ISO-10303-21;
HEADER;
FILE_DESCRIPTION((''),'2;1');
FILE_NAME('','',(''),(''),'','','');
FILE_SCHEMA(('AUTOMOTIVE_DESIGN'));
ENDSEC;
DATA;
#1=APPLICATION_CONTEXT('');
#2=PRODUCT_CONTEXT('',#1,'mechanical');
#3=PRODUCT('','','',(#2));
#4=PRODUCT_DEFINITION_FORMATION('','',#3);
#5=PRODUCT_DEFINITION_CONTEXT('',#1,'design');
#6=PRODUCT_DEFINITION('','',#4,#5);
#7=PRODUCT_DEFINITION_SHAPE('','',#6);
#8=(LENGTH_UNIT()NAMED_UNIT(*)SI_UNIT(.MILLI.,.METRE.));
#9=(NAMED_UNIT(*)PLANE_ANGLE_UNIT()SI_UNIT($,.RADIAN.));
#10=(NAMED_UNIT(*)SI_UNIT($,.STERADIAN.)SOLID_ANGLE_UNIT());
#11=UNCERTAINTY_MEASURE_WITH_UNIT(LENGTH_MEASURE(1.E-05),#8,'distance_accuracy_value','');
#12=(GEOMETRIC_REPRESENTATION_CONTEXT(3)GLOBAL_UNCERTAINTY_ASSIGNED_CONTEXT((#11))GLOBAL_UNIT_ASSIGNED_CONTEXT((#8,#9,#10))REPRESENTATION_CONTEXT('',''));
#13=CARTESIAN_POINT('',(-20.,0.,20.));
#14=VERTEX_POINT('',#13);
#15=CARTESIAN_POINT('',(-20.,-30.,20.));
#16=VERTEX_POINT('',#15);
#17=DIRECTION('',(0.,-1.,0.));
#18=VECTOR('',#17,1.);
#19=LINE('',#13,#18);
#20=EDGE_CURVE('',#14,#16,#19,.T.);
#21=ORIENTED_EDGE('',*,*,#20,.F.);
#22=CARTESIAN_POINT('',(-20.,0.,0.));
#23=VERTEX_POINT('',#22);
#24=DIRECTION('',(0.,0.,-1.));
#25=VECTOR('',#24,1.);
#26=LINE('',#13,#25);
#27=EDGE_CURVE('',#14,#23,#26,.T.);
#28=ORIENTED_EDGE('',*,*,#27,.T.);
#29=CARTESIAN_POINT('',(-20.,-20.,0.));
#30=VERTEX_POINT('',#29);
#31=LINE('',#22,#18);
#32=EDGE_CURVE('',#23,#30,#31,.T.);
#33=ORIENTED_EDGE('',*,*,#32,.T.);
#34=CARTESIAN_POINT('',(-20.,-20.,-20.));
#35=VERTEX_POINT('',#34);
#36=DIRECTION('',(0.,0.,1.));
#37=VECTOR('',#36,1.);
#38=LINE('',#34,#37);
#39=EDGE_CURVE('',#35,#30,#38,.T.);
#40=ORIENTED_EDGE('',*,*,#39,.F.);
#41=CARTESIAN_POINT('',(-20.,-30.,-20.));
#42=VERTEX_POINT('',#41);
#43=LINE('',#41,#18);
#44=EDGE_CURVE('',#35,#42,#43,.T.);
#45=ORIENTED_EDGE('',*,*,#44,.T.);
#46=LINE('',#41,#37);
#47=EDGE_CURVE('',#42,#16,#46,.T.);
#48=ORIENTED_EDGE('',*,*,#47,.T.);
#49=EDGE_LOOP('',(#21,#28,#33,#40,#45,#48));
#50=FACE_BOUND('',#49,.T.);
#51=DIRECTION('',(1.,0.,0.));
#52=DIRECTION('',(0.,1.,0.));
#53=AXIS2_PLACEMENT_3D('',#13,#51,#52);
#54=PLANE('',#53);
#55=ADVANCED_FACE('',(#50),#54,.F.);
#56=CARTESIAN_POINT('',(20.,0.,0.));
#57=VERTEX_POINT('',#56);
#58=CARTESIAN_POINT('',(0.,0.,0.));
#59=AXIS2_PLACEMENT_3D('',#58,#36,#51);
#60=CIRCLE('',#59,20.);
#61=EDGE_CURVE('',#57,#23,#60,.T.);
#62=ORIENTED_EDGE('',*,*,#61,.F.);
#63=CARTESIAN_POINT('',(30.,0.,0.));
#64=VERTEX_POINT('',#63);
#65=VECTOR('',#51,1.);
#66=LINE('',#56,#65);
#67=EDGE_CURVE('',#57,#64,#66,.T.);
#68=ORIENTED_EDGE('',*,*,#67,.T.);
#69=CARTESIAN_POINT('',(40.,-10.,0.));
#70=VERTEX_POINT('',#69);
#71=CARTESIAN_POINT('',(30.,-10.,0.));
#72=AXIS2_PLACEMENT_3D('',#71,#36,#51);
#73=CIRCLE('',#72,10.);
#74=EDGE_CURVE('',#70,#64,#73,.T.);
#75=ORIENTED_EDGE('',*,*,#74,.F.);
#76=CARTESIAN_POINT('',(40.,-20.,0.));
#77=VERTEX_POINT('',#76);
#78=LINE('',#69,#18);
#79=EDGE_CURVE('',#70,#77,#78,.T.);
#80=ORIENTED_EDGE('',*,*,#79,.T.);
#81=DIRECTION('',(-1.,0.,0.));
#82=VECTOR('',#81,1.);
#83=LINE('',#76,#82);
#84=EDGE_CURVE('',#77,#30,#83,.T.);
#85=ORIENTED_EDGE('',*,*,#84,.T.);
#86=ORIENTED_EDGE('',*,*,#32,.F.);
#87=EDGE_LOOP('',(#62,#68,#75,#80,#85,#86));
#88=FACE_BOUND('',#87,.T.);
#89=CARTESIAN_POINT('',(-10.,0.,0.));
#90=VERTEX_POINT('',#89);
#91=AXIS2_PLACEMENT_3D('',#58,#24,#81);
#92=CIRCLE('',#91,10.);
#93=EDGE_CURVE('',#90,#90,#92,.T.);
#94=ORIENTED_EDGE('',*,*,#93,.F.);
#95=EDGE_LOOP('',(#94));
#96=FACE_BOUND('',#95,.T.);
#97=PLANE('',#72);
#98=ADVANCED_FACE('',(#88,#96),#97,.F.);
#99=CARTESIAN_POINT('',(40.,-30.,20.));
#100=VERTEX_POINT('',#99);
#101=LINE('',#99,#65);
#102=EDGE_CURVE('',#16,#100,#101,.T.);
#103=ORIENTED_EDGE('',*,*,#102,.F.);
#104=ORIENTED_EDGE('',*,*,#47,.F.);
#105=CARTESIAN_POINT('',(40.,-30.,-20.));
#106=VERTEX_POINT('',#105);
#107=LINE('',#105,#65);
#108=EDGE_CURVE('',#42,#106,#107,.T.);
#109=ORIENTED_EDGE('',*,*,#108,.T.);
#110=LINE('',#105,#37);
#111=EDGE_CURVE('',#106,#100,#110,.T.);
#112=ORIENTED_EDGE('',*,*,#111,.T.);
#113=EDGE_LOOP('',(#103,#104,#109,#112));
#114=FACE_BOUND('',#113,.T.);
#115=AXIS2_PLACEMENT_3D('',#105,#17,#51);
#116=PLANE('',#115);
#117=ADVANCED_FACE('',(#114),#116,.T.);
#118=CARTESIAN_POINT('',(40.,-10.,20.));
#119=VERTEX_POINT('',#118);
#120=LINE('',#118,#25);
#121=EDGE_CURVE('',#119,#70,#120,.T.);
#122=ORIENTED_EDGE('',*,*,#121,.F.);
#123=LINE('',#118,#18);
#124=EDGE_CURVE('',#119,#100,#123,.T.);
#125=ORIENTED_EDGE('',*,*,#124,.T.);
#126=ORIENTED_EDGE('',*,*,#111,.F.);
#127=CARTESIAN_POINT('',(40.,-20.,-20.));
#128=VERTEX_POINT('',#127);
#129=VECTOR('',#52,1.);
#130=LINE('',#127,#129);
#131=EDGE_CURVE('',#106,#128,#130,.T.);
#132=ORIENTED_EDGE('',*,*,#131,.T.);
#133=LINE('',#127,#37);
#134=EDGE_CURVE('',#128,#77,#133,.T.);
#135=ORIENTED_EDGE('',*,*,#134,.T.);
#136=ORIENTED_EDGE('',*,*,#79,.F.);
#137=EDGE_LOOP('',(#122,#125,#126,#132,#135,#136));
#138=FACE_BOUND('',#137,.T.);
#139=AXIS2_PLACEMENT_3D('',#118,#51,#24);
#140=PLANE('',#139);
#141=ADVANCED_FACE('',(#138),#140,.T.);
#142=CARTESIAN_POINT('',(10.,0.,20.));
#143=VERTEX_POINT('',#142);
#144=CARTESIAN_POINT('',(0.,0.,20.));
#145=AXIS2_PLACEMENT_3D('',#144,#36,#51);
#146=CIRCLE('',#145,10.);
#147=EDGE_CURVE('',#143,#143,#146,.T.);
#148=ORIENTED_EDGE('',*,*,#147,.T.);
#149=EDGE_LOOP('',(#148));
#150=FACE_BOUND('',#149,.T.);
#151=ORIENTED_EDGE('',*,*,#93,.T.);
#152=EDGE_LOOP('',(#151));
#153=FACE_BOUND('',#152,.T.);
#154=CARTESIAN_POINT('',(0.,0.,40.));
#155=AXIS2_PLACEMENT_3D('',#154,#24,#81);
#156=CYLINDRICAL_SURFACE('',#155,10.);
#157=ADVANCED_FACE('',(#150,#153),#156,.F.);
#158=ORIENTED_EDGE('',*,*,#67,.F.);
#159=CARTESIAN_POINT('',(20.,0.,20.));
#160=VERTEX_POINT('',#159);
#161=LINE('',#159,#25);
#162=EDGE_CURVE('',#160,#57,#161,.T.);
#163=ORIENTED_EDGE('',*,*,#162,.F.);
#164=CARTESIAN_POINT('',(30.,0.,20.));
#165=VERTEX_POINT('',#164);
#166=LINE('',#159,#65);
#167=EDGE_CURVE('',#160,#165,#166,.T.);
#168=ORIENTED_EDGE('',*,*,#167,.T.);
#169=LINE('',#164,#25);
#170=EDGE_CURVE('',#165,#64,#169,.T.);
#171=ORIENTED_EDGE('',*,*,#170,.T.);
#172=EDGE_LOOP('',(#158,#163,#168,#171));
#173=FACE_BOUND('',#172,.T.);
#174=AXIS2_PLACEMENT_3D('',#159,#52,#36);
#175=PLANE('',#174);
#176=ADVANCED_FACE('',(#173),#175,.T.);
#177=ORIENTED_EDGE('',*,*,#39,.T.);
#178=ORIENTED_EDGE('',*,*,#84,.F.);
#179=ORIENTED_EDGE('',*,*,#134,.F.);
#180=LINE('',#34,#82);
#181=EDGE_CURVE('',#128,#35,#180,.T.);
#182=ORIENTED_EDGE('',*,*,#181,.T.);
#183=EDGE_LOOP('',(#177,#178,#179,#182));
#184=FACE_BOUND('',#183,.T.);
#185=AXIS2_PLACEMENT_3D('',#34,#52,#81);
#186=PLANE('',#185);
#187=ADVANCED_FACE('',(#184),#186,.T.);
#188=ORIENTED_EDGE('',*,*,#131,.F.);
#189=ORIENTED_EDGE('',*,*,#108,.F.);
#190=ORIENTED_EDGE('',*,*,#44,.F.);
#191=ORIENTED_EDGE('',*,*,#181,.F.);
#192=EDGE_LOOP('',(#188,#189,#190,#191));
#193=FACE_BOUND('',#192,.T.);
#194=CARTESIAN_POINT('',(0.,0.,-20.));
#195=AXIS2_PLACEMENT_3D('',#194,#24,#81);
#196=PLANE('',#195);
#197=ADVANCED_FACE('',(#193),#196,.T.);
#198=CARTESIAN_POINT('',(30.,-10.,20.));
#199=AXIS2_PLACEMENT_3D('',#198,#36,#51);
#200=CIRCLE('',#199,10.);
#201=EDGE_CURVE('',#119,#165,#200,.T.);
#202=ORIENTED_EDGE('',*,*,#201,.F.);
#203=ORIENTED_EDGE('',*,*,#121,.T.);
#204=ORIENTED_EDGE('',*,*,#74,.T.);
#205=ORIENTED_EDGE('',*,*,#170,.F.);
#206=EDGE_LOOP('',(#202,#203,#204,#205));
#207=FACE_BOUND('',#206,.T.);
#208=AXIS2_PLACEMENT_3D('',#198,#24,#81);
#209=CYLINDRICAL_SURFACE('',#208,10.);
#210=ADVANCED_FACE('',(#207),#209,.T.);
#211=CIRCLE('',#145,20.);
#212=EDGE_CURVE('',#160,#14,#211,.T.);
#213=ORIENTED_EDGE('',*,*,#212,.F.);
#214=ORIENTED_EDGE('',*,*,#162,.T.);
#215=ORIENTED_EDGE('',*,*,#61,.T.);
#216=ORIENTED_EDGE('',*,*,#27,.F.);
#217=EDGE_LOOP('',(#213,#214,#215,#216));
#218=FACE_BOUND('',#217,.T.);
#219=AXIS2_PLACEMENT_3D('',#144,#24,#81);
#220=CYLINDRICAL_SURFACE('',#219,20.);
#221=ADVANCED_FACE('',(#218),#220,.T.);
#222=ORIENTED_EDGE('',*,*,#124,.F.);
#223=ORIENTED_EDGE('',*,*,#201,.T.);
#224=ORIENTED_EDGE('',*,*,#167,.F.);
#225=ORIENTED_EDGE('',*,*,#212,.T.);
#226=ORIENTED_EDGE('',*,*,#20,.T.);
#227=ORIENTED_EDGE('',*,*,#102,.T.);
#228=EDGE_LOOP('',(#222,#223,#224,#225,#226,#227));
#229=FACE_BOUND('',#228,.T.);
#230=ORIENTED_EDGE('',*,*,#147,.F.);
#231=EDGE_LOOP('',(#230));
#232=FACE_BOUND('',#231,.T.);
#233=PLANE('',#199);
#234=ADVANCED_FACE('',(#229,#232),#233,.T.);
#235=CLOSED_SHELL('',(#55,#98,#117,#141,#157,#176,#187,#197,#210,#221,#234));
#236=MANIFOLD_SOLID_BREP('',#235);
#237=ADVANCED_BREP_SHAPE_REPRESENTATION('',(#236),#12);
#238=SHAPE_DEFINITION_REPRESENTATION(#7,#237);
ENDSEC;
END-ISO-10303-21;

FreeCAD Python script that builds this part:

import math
import FreeCAD as App
import Part
import Sketcher

doc = App.newDocument("Part")
body = doc.addObject("PartDesign::Body", "Body")

# Sketch on XY plane
sketch1 = body.newObject("Sketcher::SketchObject", "Sketch")
sketch1.AttachmentSupport = (doc.getObject("XY_Plane"), [""])
sketch1.MapMode = "FlatFace"
sketch1.addGeometry(Part.LineSegment(App.Vector(30, 0, 0), App.Vector(20, 0, 0)), False)
sketch1.addGeometry(Part.ArcOfCircle(Part.Circle(App.Vector(0, 0, 0), App.Vector(0, 0, 1), 20), math.radians(0), math.radians(180)), False)
sketch1.addGeometry(Part.LineSegment(App.Vector(-20, 0, 0), App.Vector(-20, -20, 0)), False)
sketch1.addGeometry(Part.LineSegment(App.Vector(-20, -20, 0), App.Vector(40, -20, 0)), False)
sketch1.addGeometry(Part.LineSegment(App.Vector(40, -20, 0), App.Vector(40, -10, 0)), False)
sketch1.addGeometry(Part.ArcOfCircle(Part.Circle(App.Vector(30, -10, 0), App.Vector(0, 0, 1), 10), math.radians(0), math.radians(90)), False)
sketch1.addConstraint(Sketcher.Constraint("Coincident", 0, 2, 1, 1))
sketch1.addConstraint(Sketcher.Constraint("Tangent", 1, 2, 2, 1))
sketch1.addConstraint(Sketcher.Constraint("Coincident", 2, 2, 3, 1))
sketch1.addConstraint(Sketcher.Constraint("Coincident", 3, 2, 4, 1))
sketch1.addConstraint(Sketcher.Constraint("Tangent", 4, 2, 5, 1))
sketch1.addConstraint(Sketcher.Constraint("Tangent", 5, 2, 0, 1))
sketch1.addConstraint(Sketcher.Constraint("Horizontal", 0))
sketch1.addConstraint(Sketcher.Constraint("Vertical", 2))
sketch1.addConstraint(Sketcher.Constraint("Horizontal", 3))
sketch1.addConstraint(Sketcher.Constraint("Vertical", 4))
sketch1.addConstraint(Sketcher.Constraint("Coincident", 1, 3, -1, 1))
sketch1.addConstraint(Sketcher.Constraint("PointOnObject", 0, 2, -1))
sketch1.addConstraint(Sketcher.Constraint("Equal", 0, 4))
sketch1.addConstraint(Sketcher.Constraint("Radius", 1, 20.0))
sketch1.addConstraint(Sketcher.Constraint("Radius", 5, 10.0))
sketch1.addConstraint(Sketcher.Constraint("DistanceX", 0, 2, 0, 1, 10.0))
pad1 = body.newObject("PartDesign::Pad", "Pad")
pad1.Profile = sketch1
pad1.Length = 20

# Sketch on XY plane
sketch2 = body.newObject("Sketcher::SketchObject", "Sketch001")
sketch2.AttachmentSupport = (doc.getObject("XY_Plane"), [""])
sketch2.MapMode = "FlatFace"
sketch2.AttachmentOffset = App.Placement(App.Vector(0, 0, 20), App.Rotation())
sketch2.addGeometry(Part.LineSegment(App.Vector(-20, -20, 0), App.Vector(-20, -30, 0)), False)
sketch2.addGeometry(Part.LineSegment(App.Vector(-20, -30, 0), App.Vector(40, -30, 0)), False)
sketch2.addGeometry(Part.LineSegment(App.Vector(40, -30, 0), App.Vector(40, -20, 0)), False)
sketch2.addGeometry(Part.LineSegment(App.Vector(40, -20, 0), App.Vector(-20, -20, 0)), False)
sketch2.addConstraint(Sketcher.Constraint("Coincident", 0, 2, 1, 1))
sketch2.addConstraint(Sketcher.Constraint("Coincident", 1, 2, 2, 1))
sketch2.addConstraint(Sketcher.Constraint("Coincident", 2, 2, 3, 1))
sketch2.addConstraint(Sketcher.Constraint("Coincident", 3, 2, 0, 1))
sketch2.addConstraint(Sketcher.Constraint("Vertical", 0))
sketch2.addConstraint(Sketcher.Constraint("Horizontal", 1))
sketch2.addConstraint(Sketcher.Constraint("Vertical", 2))
sketch2.addConstraint(Sketcher.Constraint("Horizontal", 3))
sketch2.addConstraint(Sketcher.Constraint("DistanceX", 1, 1, 1, 2, 60.0))
sketch2.addConstraint(Sketcher.Constraint("DistanceY", 0, 2, 0, 1, 10.0))
sketch2.addConstraint(Sketcher.Constraint("DistanceX", 0, 2, -1, 1, 20.0))
sketch2.addConstraint(Sketcher.Constraint("DistanceY", 0, 2, -1, 1, 30.0))
pad2 = body.newObject("PartDesign::Pad", "Pad001")
pad2.Profile = sketch2
pad2.Length = 40
pad2.Reversed = True

# Sketch on XY plane
sketch3 = body.newObject("Sketcher::SketchObject", "Sketch002")
sketch3.AttachmentSupport = (doc.getObject("XY_Plane"), [""])
sketch3.MapMode = "FlatFace"
sketch3.addGeometry(Part.Circle(App.Vector(0, 0, 0), App.Vector(0, 0, 1), 10), False)
sketch3.addConstraint(Sketcher.Constraint("Coincident", 0, 3, -1, 1))
sketch3.addConstraint(Sketcher.Constraint("Diameter", 0, 20.0))
pocket1 = body.newObject("PartDesign::Pocket", "Pocket")
pocket1.Profile = sketch3
pocket1.Length = 40
pocket1.Reversed = True

doc.recompute()
